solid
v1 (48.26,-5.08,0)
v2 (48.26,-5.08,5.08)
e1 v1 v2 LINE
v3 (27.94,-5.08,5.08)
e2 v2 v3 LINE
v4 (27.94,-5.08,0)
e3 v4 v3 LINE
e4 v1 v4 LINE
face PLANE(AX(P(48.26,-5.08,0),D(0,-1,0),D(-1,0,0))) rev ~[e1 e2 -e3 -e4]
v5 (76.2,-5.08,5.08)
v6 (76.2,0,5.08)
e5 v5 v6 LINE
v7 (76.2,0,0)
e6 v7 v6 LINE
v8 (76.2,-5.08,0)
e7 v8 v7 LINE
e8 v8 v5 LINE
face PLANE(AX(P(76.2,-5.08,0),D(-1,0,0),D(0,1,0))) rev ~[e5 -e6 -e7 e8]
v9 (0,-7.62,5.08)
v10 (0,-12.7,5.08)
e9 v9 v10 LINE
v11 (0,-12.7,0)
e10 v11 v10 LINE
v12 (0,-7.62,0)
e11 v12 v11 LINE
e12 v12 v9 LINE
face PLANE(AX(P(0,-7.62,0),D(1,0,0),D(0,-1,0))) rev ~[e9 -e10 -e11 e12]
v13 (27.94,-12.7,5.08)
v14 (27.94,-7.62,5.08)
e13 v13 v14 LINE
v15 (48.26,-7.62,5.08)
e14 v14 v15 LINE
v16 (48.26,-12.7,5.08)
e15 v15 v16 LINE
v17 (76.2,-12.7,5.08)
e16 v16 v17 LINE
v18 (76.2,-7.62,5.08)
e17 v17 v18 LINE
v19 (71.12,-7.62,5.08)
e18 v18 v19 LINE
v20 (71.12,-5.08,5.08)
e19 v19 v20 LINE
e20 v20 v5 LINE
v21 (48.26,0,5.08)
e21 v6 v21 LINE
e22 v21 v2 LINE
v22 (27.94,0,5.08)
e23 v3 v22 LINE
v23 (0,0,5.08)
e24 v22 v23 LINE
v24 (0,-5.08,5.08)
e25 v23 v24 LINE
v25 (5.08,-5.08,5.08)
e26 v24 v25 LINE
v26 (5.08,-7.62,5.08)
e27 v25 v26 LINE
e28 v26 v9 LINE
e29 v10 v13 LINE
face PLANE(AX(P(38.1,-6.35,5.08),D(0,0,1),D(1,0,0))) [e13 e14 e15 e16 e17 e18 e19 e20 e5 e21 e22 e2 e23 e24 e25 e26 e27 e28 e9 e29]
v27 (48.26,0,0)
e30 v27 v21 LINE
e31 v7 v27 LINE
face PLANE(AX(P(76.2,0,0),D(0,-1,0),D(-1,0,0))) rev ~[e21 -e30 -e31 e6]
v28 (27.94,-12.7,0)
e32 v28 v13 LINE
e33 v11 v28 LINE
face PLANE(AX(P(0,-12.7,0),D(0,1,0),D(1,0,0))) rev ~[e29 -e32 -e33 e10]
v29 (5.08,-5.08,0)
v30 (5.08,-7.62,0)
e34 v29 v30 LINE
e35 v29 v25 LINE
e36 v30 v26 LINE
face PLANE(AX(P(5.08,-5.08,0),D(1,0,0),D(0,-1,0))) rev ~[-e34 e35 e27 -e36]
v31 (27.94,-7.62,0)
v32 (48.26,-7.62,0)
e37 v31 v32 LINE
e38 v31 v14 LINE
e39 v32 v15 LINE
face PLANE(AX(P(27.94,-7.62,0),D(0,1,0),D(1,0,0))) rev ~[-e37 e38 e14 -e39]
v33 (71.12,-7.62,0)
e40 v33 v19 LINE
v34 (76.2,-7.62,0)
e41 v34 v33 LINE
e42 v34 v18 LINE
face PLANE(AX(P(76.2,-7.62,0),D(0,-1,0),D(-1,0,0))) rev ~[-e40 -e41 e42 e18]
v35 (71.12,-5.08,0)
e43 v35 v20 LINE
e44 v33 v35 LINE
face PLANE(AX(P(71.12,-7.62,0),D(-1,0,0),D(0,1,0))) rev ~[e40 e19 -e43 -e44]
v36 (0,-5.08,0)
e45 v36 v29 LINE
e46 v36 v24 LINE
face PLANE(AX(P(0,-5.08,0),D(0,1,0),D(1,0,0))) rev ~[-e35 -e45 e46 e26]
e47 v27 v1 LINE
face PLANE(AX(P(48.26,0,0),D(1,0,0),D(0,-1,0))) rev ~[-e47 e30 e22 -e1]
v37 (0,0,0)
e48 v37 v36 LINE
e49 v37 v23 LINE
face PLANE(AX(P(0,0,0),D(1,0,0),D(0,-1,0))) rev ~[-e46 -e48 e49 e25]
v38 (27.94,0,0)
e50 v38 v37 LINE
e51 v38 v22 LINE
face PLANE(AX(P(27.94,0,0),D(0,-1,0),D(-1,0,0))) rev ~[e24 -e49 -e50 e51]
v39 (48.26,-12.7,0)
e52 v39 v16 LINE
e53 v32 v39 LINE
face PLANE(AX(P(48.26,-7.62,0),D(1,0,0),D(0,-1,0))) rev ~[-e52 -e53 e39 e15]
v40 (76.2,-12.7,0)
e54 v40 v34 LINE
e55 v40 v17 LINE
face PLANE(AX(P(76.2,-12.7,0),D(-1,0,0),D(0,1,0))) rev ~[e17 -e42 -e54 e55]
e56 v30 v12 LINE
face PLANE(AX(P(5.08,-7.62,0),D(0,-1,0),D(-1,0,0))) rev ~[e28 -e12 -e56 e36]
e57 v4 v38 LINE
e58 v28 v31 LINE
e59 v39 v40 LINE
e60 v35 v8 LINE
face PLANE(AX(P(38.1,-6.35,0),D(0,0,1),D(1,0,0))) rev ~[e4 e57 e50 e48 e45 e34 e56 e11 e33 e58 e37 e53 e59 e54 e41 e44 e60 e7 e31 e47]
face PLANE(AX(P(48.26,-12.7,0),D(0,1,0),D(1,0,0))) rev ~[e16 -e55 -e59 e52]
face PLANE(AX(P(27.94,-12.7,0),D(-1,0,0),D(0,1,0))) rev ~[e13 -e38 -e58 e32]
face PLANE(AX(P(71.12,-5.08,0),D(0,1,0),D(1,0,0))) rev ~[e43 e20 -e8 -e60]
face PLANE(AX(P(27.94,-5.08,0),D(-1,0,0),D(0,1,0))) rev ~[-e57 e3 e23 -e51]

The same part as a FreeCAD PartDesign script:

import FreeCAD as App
import Part
import Sketcher
Q = App.Units.Quantity

doc = App.newDocument("Part")
body = doc.addObject("PartDesign::Body", "Body")

# Sketch on XY plane
sketch1 = doc.addObject("Sketcher::SketchObject", "Sketch")
body.addObject(sketch1)
sketch1.AttachmentSupport = (doc.XY_Plane, [""])
sketch1.MapMode = "FlatFace"
sketch1.addGeometry([
    Part.LineSegment(App.Vector(0, -7.6, 0), App.Vector(0, -12.7, 0)),  # 0
    Part.LineSegment(App.Vector(0, -12.7, 0), App.Vector(27.9, -12.7, 0)),  # 1
    Part.LineSegment(App.Vector(27.9, -12.7, 0), App.Vector(27.9, -7.6, 0)),  # 2
    Part.LineSegment(App.Vector(27.9, -7.6, 0), App.Vector(48.3, -7.6, 0)),  # 3
    Part.LineSegment(App.Vector(48.3, -7.6, 0), App.Vector(48.3, -12.7, 0)),  # 4
    Part.LineSegment(App.Vector(48.3, -12.7, 0), App.Vector(76.2, -12.7, 0)),  # 5
    Part.LineSegment(App.Vector(76.2, -12.7, 0), App.Vector(76.2, -7.6, 0)),  # 6
    Part.LineSegment(App.Vector(76.2, -7.6, 0), App.Vector(71.1, -7.6, 0)),  # 7
    Part.LineSegment(App.Vector(71.1, -7.6, 0), App.Vector(71.1, -5.1, 0)),  # 8
    Part.LineSegment(App.Vector(71.1, -5.1, 0), App.Vector(76.2, -5.1, 0)),  # 9
    Part.LineSegment(App.Vector(76.2, -5.1, 0), App.Vector(76.2, 0, 0)),  # 10
    Part.LineSegment(App.Vector(76.2, 0, 0), App.Vector(48.3, 0, 0)),  # 11
    Part.LineSegment(App.Vector(48.3, 0, 0), App.Vector(48.3, -5.1, 0)),  # 12
    Part.LineSegment(App.Vector(48.3, -5.1, 0), App.Vector(27.9, -5.1, 0)),  # 13
    Part.LineSegment(App.Vector(27.9, -5.1, 0), App.Vector(27.9, 0, 0)),  # 14
    Part.LineSegment(App.Vector(27.9, 0, 0), App.Vector(0, 0, 0)),  # 15
    Part.LineSegment(App.Vector(0, 0, 0), App.Vector(0, -5.1, 0)),  # 16
    Part.LineSegment(App.Vector(0, -5.1, 0), App.Vector(5.1, -5.1, 0)),  # 17
    Part.LineSegment(App.Vector(5.1, -5.1, 0), App.Vector(5.1, -7.6, 0)),  # 18
    Part.LineSegment(App.Vector(5.1, -7.6, 0), App.Vector(0, -7.6, 0)),  # 19
], False)
sketch1.addConstraint([
    Sketcher.Constraint("Coincident", 0, 2, 1, 1),
    Sketcher.Constraint("Coincident", 1, 2, 2, 1),
    Sketcher.Constraint("Coincident", 2, 2, 3, 1),
    Sketcher.Constraint("Coincident", 3, 2, 4, 1),
    Sketcher.Constraint("Coincident", 4, 2, 5, 1),
    Sketcher.Constraint("Coincident", 5, 2, 6, 1),
    Sketcher.Constraint("Coincident", 6, 2, 7, 1),
    Sketcher.Constraint("Coincident", 7, 2, 8, 1),
    Sketcher.Constraint("Coincident", 8, 2, 9, 1),
    Sketcher.Constraint("Coincident", 9, 2, 10, 1),
    Sketcher.Constraint("Coincident", 10, 2, 11, 1),
    Sketcher.Constraint("Coincident", 11, 2, 12, 1),
    Sketcher.Constraint("Coincident", 12, 2, 13, 1),
    Sketcher.Constraint("Coincident", 13, 2, 14, 1),
    Sketcher.Constraint("Coincident", 14, 2, 15, 1),
    Sketcher.Constraint("Coincident", 15, 2, 16, 1),
    Sketcher.Constraint("Coincident", 16, 2, 17, 1),
    Sketcher.Constraint("Coincident", 17, 2, 18, 1),
    Sketcher.Constraint("Coincident", 18, 2, 19, 1),
    Sketcher.Constraint("Coincident", 19, 2, 0, 1),
    Sketcher.Constraint("Vertical", 0),
    Sketcher.Constraint("Horizontal", 1),
    Sketcher.Constraint("Vertical", 2),
    Sketcher.Constraint("Horizontal", 3),
    Sketcher.Constraint("Vertical", 4),
    Sketcher.Constraint("Horizontal", 5),
    Sketcher.Constraint("Vertical", 6),
    Sketcher.Constraint("Horizontal", 7),
    Sketcher.Constraint("Vertical", 8),
    Sketcher.Constraint("Horizontal", 9),
    Sketcher.Constraint("Vertical", 10),
    Sketcher.Constraint("Horizontal", 11),
    Sketcher.Constraint("Vertical", 12),
    Sketcher.Constraint("Horizontal", 13),
    Sketcher.Constraint("Vertical", 14),
    Sketcher.Constraint("Horizontal", 15),
    Sketcher.Constraint("Vertical", 16),
    Sketcher.Constraint("Horizontal", 17),
    Sketcher.Constraint("Vertical", 18),
    Sketcher.Constraint("Horizontal", 19),
    Sketcher.Constraint("Coincident", 15, 2, -1, 1),
    Sketcher.Constraint("PointOnObject", 0, 2, -2),
    Sketcher.Constraint("PointOnObject", 10, 2, -1),
    Sketcher.Constraint("Horizontal", 1, 2, 4, 2),
    Sketcher.Constraint("Horizontal", 3, 2, 6, 2),
    Sketcher.Constraint("Horizontal", 9, 2, 12, 2),
    Sketcher.Constraint("Horizontal", 13, 2, 16, 2),
    Sketcher.Constraint("Horizontal", 7, 2, 18, 2),
    Sketcher.Constraint("Vertical", 6, 2, 9, 2),
    Sketcher.Constraint("Vertical", 4, 2, 11, 2),
    Sketcher.Constraint("Vertical", 2, 2, 13, 2),
    Sketcher.Constraint("Equal", 1, 5),
    Sketcher.Constraint("Equal", 9, 17),
    Sketcher.Constraint("Equal", 19, 0),
    Sketcher.Constraint("Equal", 6, 10),
    Sketcher.Constraint("DistanceX", 1, 1, 1, 2, Q("1.1 in")),
    Sketcher.Constraint("DistanceX", 3, 1, 3, 2, Q("0.8 in")),
    Sketcher.Constraint("DistanceX", 7, 2, 7, 1, Q("0.2 in")),
    Sketcher.Constraint("DistanceY", 8, 1, 8, 2, Q("0.1 in")),
])
pad1 = doc.addObject("PartDesign::Pad", "Pad")
body.addObject(pad1)
pad1.Profile = sketch1
pad1.Length = Q("0.2 in")

doc.recompute()
